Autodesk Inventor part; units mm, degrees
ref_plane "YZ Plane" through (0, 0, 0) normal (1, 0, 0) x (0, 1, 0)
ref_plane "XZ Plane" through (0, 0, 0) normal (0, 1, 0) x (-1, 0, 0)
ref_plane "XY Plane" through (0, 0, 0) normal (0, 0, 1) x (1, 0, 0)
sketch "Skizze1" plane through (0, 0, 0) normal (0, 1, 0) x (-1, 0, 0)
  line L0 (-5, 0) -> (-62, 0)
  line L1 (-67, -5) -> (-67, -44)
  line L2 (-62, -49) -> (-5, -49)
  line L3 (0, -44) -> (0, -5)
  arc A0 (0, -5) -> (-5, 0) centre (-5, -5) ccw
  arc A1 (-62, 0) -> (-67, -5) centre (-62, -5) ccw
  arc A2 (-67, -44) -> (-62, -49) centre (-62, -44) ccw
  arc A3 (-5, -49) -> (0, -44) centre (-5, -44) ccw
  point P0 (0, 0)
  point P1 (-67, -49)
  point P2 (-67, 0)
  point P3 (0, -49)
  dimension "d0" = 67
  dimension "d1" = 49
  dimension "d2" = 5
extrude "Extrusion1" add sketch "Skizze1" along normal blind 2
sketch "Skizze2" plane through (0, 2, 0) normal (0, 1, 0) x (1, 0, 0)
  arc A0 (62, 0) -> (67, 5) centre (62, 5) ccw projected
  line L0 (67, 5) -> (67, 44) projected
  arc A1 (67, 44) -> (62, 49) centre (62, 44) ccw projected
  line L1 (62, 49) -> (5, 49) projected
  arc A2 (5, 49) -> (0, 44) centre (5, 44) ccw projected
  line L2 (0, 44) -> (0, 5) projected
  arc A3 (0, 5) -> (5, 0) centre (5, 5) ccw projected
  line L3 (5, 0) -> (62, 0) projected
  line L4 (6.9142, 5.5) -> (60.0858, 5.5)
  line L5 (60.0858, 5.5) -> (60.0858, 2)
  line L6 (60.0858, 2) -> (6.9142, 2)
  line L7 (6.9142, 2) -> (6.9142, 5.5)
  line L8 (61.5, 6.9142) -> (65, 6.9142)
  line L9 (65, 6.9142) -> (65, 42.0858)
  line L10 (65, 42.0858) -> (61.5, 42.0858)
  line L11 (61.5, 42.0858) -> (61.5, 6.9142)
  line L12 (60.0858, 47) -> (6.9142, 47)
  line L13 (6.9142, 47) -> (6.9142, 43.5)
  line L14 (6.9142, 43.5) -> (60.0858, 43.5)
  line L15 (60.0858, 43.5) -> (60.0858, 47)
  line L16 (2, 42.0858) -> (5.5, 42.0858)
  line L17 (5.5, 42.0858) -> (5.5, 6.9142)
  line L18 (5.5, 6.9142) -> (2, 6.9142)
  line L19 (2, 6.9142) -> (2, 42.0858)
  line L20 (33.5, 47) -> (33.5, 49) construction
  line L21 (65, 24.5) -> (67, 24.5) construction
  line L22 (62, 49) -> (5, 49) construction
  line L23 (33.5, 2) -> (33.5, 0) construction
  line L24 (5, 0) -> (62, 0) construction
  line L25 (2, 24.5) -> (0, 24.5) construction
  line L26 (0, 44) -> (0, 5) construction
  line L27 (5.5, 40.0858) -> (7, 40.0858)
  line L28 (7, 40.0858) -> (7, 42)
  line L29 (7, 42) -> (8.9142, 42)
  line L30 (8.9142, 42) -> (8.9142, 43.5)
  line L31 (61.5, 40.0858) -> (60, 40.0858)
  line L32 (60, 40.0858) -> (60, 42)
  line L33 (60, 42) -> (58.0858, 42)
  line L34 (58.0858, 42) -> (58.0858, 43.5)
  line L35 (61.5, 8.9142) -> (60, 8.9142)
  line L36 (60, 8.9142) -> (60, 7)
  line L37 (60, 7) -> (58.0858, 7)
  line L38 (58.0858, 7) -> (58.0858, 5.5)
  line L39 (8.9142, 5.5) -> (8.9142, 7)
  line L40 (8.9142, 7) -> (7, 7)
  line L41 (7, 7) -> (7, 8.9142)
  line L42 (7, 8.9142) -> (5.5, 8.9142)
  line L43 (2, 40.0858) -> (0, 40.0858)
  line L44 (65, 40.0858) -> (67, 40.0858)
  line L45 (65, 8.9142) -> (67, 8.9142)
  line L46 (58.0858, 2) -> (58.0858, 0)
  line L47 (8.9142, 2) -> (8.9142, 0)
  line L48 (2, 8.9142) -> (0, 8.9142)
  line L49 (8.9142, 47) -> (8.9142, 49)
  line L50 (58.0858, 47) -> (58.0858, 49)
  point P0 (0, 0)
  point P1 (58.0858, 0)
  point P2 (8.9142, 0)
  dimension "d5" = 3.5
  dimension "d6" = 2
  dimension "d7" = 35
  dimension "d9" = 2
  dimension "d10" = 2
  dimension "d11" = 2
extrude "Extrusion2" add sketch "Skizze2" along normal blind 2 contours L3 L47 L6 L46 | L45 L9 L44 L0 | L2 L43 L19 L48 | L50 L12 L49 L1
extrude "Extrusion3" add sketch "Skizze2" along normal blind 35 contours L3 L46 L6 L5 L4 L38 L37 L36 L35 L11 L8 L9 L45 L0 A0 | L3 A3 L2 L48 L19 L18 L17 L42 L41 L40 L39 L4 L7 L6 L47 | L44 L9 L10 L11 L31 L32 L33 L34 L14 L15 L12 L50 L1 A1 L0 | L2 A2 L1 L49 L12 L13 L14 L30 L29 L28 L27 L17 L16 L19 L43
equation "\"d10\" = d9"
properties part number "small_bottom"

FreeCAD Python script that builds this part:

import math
import FreeCAD as App
import Part
import Sketcher

V = App.Vector

doc = App.newDocument("Part")
body = doc.addObject("PartDesign::Body", "Body")

# Sketch on XZ plane
sketch1 = doc.addObject("Sketcher::SketchObject", "Sketch")
body.addObject(sketch1)
sketch1.AttachmentSupport = (doc.XZ_Plane, [""])
sketch1.MapMode = "FlatFace"
sketch1.addGeometry([
    Part.ArcOfCircle(Part.Circle(V(5, -5, 0), V(0, 0, 1), 5), math.radians(90), math.radians(180)),  # 0
    Part.LineSegment(V(5, 0, 0), V(62, 0, 0)),  # 1
    Part.ArcOfCircle(Part.Circle(V(62, -5, 0), V(0, 0, 1), 5), math.radians(0), math.radians(90)),  # 2
    Part.LineSegment(V(67, -5, 0), V(67, -44, 0)),  # 3
    Part.ArcOfCircle(Part.Circle(V(62, -44, 0), V(0, 0, 1), 5), math.radians(-90), math.radians(0)),  # 4
    Part.LineSegment(V(62, -49, 0), V(5, -49, 0)),  # 5
    Part.ArcOfCircle(Part.Circle(V(5, -44, 0), V(0, 0, 1), 5), math.radians(180), math.radians(270)),  # 6
    Part.LineSegment(V(0, -44, 0), V(0, -5, 0)),  # 7
], False)
sketch1.addConstraint([
    Sketcher.Constraint("Tangent", 0, 1, 1, 1),
    Sketcher.Constraint("Tangent", 1, 2, 2, 2),
    Sketcher.Constraint("Tangent", 2, 1, 3, 1),
    Sketcher.Constraint("Tangent", 3, 2, 4, 2),
    Sketcher.Constraint("Tangent", 4, 1, 5, 1),
    Sketcher.Constraint("Tangent", 5, 2, 6, 2),
    Sketcher.Constraint("Tangent", 6, 1, 7, 1),
    Sketcher.Constraint("Tangent", 7, 2, 0, 2),
    Sketcher.Constraint("Horizontal", 1),
    Sketcher.Constraint("Vertical", 3),
    Sketcher.Constraint("Horizontal", 5),
    Sketcher.Constraint("Vertical", 7),
    Sketcher.Constraint("Equal", 0, 2),
    Sketcher.Constraint("Equal", 2, 4),
    Sketcher.Constraint("Equal", 4, 6),
    Sketcher.Constraint("PointOnObject", 0, 1, -1),
    Sketcher.Constraint("PointOnObject", 6, 1, -2),
    Sketcher.Constraint("Radius", 0, 5.0),
    Sketcher.Constraint("DistanceX", -1, 1, 2, 1, 67.0),
    Sketcher.Constraint("DistanceY", 4, 1, -1, 1, 49.0),
])
pad1 = doc.addObject("PartDesign::Pad", "Pad")
body.addObject(pad1)
pad1.Profile = sketch1
pad1.Length = 2
pad1.Reversed = True

# Sketch on XZ plane
sketch2 = doc.addObject("Sketcher::SketchObject", "Sketch001")
body.addObject(sketch2)
sketch2.AttachmentSupport = (doc.XZ_Plane, [""])
sketch2.MapMode = "FlatFace"
sketch2.AttachmentOffset = App.Placement(V(0, 0, -2), App.Rotation())
sketch2.addGeometry([
    Part.LineSegment(V(8.9142, 0, 0), V(58.0858, 0, 0)),  # 0
    Part.LineSegment(V(58.0858, 0, 0), V(58.0858, -2, 0)),  # 1
    Part.LineSegment(V(58.0858, -2, 0), V(8.9142, -2, 0)),  # 2
    Part.LineSegment(V(8.9142, -2, 0), V(8.9142, 0, 0)),  # 3
    Part.LineSegment(V(65, -8.9142, 0), V(67, -8.9142, 0)),  # 4
    Part.LineSegment(V(67, -8.9142, 0), V(67, -40.0858, 0)),  # 5
    Part.LineSegment(V(67, -40.0858, 0), V(65, -40.0858, 0)),  # 6
    Part.LineSegment(V(65, -40.0858, 0), V(65, -8.9142, 0)),  # 7
    Part.LineSegment(V(0, -40.0858, 0), V(0, -8.9142, 0)),  # 8
    Part.LineSegment(V(0, -8.9142, 0), V(2, -8.9142, 0)),  # 9
    Part.LineSegment(V(2, -8.9142, 0), V(2, -40.0858, 0)),  # 10
    Part.LineSegment(V(2, -40.0858, 0), V(0, -40.0858, 0)),  # 11
    Part.LineSegment(V(58.0858, -47, 0), V(58.0858, -49, 0)),  # 12
    Part.LineSegment(V(58.0858, -49, 0), V(8.9142, -49, 0)),  # 13
    Part.LineSegment(V(8.9142, -49, 0), V(8.9142, -47, 0)),  # 14
    Part.LineSegment(V(8.9142, -47, 0), V(58.0858, -47, 0)),  # 15
], False)
sketch2.addConstraint([
    Sketcher.Constraint("Coincident", 0, 2, 1, 1),
    Sketcher.Constraint("Coincident", 1, 2, 2, 1),
    Sketcher.Constraint("Coincident", 2, 2, 3, 1),
    Sketcher.Constraint("Coincident", 3, 2, 0, 1),
    Sketcher.Constraint("Coincident", 4, 2, 5, 1),
    Sketcher.Constraint("Coincident", 5, 2, 6, 1),
    Sketcher.Constraint("Coincident", 6, 2, 7, 1),
    Sketcher.Constraint("Coincident", 7, 2, 4, 1),
    Sketcher.Constraint("Coincident", 8, 2, 9, 1),
    Sketcher.Constraint("Coincident", 9, 2, 10, 1),
    Sketcher.Constraint("Coincident", 10, 2, 11, 1),
    Sketcher.Constraint("Coincident", 11, 2, 8, 1),
    Sketcher.Constraint("Coincident", 12, 2, 13, 1),
    Sketcher.Constraint("Coincident", 13, 2, 14, 1),
    Sketcher.Constraint("Coincident", 14, 2, 15, 1),
    Sketcher.Constraint("Coincident", 15, 2, 12, 1),
    Sketcher.Constraint("Horizontal", 0),
    Sketcher.Constraint("Vertical", 1),
    Sketcher.Constraint("Horizontal", 2),
    Sketcher.Constraint("Vertical", 3),
    Sketcher.Constraint("Horizontal", 4),
    Sketcher.Constraint("Vertical", 5),
    Sketcher.Constraint("Horizontal", 6),
    Sketcher.Constraint("Vertical", 7),
    Sketcher.Constraint("Vertical", 8),
    Sketcher.Constraint("Horizontal", 9),
    Sketcher.Constraint("Vertical", 10),
    Sketcher.Constraint("Horizontal", 11),
    Sketcher.Constraint("Vertical", 12),
    Sketcher.Constraint("Horizontal", 13),
    Sketcher.Constraint("Vertical", 14),
    Sketcher.Constraint("Horizontal", 15),
    Sketcher.Constraint("PointOnObject", 0, 2, -1),
    Sketcher.Constraint("PointOnObject", 8, 2, -2),
    Sketcher.Constraint("Horizontal", 7, 2, 8, 2),
    Sketcher.Constraint("Horizontal", 6, 2, 10, 2),
    Sketcher.Constraint("Vertical", 1, 2, 12, 2),
    Sketcher.Constraint("Vertical", 3, 2, 13, 2),
    Sketcher.Constraint("Equal", 6, 9),
    Sketcher.Constraint("Equal", 11, 1),
    Sketcher.Constraint("Equal", 3, 12),
    Sketcher.Constraint("DistanceX", 4, 1, 4, 2, 2.0),
    Sketcher.Constraint("DistanceX", -1, 1, 4, 2, 67.0),
    Sketcher.Constraint("DistanceY", 12, 2, -1, 1, 49.0),
    Sketcher.Constraint("DistanceX", 0, 1, 0, 2, 49.1716),
    Sketcher.Constraint("DistanceY", 5, 2, 5, 1, 31.1716),
    Sketcher.Constraint("DistanceX", -1, 1, 0, 2, 58.0858),
    Sketcher.Constraint("DistanceY", 4, 2, -1, 1, 8.9142),
])
pad2 = doc.addObject("PartDesign::Pad", "Pad001")
body.addObject(pad2)
pad2.Profile = sketch2
pad2.Length = 2
pad2.Reversed = True

# Sketch on XZ plane
sketch3 = doc.addObject("Sketcher::SketchObject", "Sketch002")
body.addObject(sketch3)
sketch3.AttachmentSupport = (doc.XZ_Plane, [""])
sketch3.MapMode = "FlatFace"
sketch3.AttachmentOffset = App.Placement(V(0, 0, -2), App.Rotation())
sketch3.addGeometry([
    Part.LineSegment(V(58.0858, 0, 0), V(62, 0, 0)),  # 0
    Part.ArcOfCircle(Part.Circle(V(62, -5, 0), V(0, 0, 1), 5), math.radians(0), math.radians(90)),  # 1
    Part.LineSegment(V(67, -5, 0), V(67, -8.9142, 0)),  # 2
    Part.LineSegment(V(67, -8.9142, 0), V(65, -8.9142, 0)),  # 3
    Part.LineSegment(V(65, -8.9142, 0), V(65, -6.9142, 0)),  # 4
    Part.LineSegment(V(65, -6.9142, 0), V(61.5, -6.9142, 0)),  # 5
    Part.LineSegment(V(61.5, -6.9142, 0), V(61.5, -8.9142, 0)),  # 6
    Part.LineSegment(V(61.5, -8.9142, 0), V(60, -8.9142, 0)),  # 7
    Part.LineSegment(V(60, -8.9142, 0), V(60, -7, 0)),  # 8
    Part.LineSegment(V(60, -7, 0), V(58.0858, -7, 0)),  # 9
    Part.LineSegment(V(58.0858, -7, 0), V(58.0858, -5.5, 0)),  # 10
    Part.LineSegment(V(58.0858, -5.5, 0), V(60.0858, -5.5, 0)),  # 11
    Part.LineSegment(V(60.0858, -5.5, 0), V(60.0858, -2, 0)),  # 12
    Part.LineSegment(V(60.0858, -2, 0), V(58.0858, -2, 0)),  # 13
    Part.LineSegment(V(58.0858, -2, 0), V(58.0858, 0, 0)),  # 14
    Part.LineSegment(V(5, 0, 0), V(8.9142, 0, 0)),  # 15
    Part.LineSegment(V(8.9142, 0, 0), V(8.9142, -2, 0)),  # 16
    Part.LineSegment(V(8.9142, -2, 0), V(6.9142, -2, 0)),  # 17
    Part.LineSegment(V(6.9142, -2, 0), V(6.9142, -5.5, 0)),  # 18
    Part.LineSegment(V(6.9142, -5.5, 0), V(8.9142, -5.5, 0)),  # 19
    Part.LineSegment(V(8.9142, -5.5, 0), V(8.9142, -7, 0)),  # 20
    Part.LineSegment(V(8.9142, -7, 0), V(7, -7, 0)),  # 21
    Part.LineSegment(V(7, -7, 0), V(7, -8.9142, 0)),  # 22
    Part.LineSegment(V(7, -8.9142, 0), V(5.5, -8.9142, 0)),  # 23
    Part.LineSegment(V(5.5, -8.9142, 0), V(5.5, -6.9142, 0)),  # 24
    Part.LineSegment(V(5.5, -6.9142, 0), V(2, -6.9142, 0)),  # 25
    Part.LineSegment(V(2, -6.9142, 0), V(2, -8.9142, 0)),  # 26
    Part.LineSegment(V(2, -8.9142, 0), V(0, -8.9142, 0)),  # 27
    Part.LineSegment(V(0, -8.9142, 0), V(0, -5, 0)),  # 28
    Part.ArcOfCircle(Part.Circle(V(5, -5, 0), V(0, 0, 1), 5), math.radians(90), math.radians(180)),  # 29
    Part.LineSegment(V(65, -40.0858, 0), V(67, -40.0858, 0)),  # 30
    Part.LineSegment(V(67, -40.0858, 0), V(67, -44, 0)),  # 31
    Part.ArcOfCircle(Part.Circle(V(62, -44, 0), V(0, 0, 1), 5), math.radians(-90), math.radians(0)),  # 32
    Part.LineSegment(V(62, -49, 0), V(58.0858, -49, 0)),  # 33
    Part.LineSegment(V(58.0858, -49, 0), V(58.0858, -47, 0)),  # 34
    Part.LineSegment(V(58.0858, -47, 0), V(60.0858, -47, 0)),  # 35
    Part.LineSegment(V(60.0858, -47, 0), V(60.0858, -43.5, 0)),  # 36
    Part.LineSegment(V(60.0858, -43.5, 0), V(58.0858, -43.5, 0)),  # 37
    Part.LineSegment(V(58.0858, -43.5, 0), V(58.0858, -42, 0)),  # 38
    Part.LineSegment(V(58.0858, -42, 0), V(60, -42, 0)),  # 39
    Part.LineSegment(V(60, -42, 0), V(60, -40.0858, 0)),  # 40
    Part.LineSegment(V(60, -40.0858, 0), V(61.5, -40.0858, 0)),  # 41
    Part.LineSegment(V(61.5, -40.0858, 0), V(61.5, -42.0858, 0)),  # 42
    Part.LineSegment(V(61.5, -42.0858, 0), V(65, -42.0858, 0)),  # 43
    Part.LineSegment(V(65, -42.0858, 0), V(65, -40.0858, 0)),  # 44
    Part.LineSegment(V(0, -44, 0), V(0, -40.0858, 0)),  # 45
    Part.LineSegment(V(0, -40.0858, 0), V(2, -40.0858, 0)),  # 46
    Part.LineSegment(V(2, -40.0858, 0), V(2, -42.0858, 0)),  # 47
    Part.LineSegment(V(2, -42.0858, 0), V(5.5, -42.0858, 0)),  # 48
    Part.LineSegment(V(5.5, -42.0858, 0), V(5.5, -40.0858, 0)),  # 49
    Part.LineSegment(V(5.5, -40.0858, 0), V(7, -40.0858, 0)),  # 50
    Part.LineSegment(V(7, -40.0858, 0), V(7, -42, 0)),  # 51
    Part.LineSegment(V(7, -42, 0), V(8.9142, -42, 0)),  # 52
    Part.LineSegment(V(8.9142, -42, 0), V(8.9142, -43.5, 0)),  # 53
    Part.LineSegment(V(8.9142, -43.5, 0), V(6.9142, -43.5, 0)),  # 54
    Part.LineSegment(V(6.9142, -43.5, 0), V(6.9142, -47, 0)),  # 55
    Part.LineSegment(V(6.9142, -47, 0), V(8.9142, -47, 0)),  # 56
    Part.LineSegment(V(8.9142, -47, 0), V(8.9142, -49, 0)),  # 57
    Part.LineSegment(V(8.9142, -49, 0), V(5, -49, 0)),  # 58
    Part.ArcOfCircle(Part.Circle(V(5, -44, 0), V(0, 0, 1), 5), math.radians(180), math.radians(270)),  # 59
], False)
sketch3.addConstraint([
    Sketcher.Constraint("Tangent", 0, 2, 1, 2),
    Sketcher.Constraint("Tangent", 1, 1, 2, 1),
    Sketcher.Constraint("Coincident", 2, 2, 3, 1),
    Sketcher.Constraint("Coincident", 3, 2, 4, 1),
    Sketcher.Constraint("Coincident", 4, 2, 5, 1),
    Sketcher.Constraint("Coincident", 5, 2, 6, 1),
    Sketcher.Constraint("Coincident", 6, 2, 7, 1),
    Sketcher.Constraint("Coincident", 7, 2, 8, 1),
    Sketcher.Constraint("Coincident", 8, 2, 9, 1),
    Sketcher.Constraint("Coincident", 9, 2, 10, 1),
    Sketcher.Constraint("Coincident", 10, 2, 11, 1),
    Sketcher.Constraint("Coincident", 11, 2, 12, 1),
    Sketcher.Constraint("Coincident", 12, 2, 13, 1),
    Sketcher.Constraint("Coincident", 13, 2, 14, 1),
    Sketcher.Constraint("Coincident", 14, 2, 0, 1),
    Sketcher.Constraint("Coincident", 15, 2, 16, 1),
    Sketcher.Constraint("Coincident", 16, 2, 17, 1),
    Sketcher.Constraint("Coincident", 17, 2, 18, 1),
    Sketcher.Constraint("Coincident", 18, 2, 19, 1),
    Sketcher.Constraint("Coincident", 19, 2, 20, 1),
    Sketcher.Constraint("Coincident", 20, 2, 21, 1),
    Sketcher.Constraint("Coincident", 21, 2, 22, 1),
    Sketcher.Constraint("Coincident", 22, 2, 23, 1),
    Sketcher.Constraint("Coincident", 23, 2, 24, 1),
    Sketcher.Constraint("Coincident", 24, 2, 25, 1),
    Sketcher.Constraint("Coincident", 25, 2, 26, 1),
    Sketcher.Constraint("Coincident", 26, 2, 27, 1),
    Sketcher.Constraint("Coincident", 27, 2, 28, 1),
    Sketcher.Constraint("Tangent", 28, 2, 29, 2),
    Sketcher.Constraint("Tangent", 29, 1, 15, 1),
    Sketcher.Constraint("Coincident", 30, 2, 31, 1),
    Sketcher.Constraint("Tangent", 31, 2, 32, 2),
    Sketcher.Constraint("Tangent", 32, 1, 33, 1),
    Sketcher.Constraint("Coincident", 33, 2, 34, 1),
    Sketcher.Constraint("Coincident", 34, 2, 35, 1),
    Sketcher.Constraint("Coincident", 35, 2, 36, 1),
    Sketcher.Constraint("Coincident", 36, 2, 37, 1),
    Sketcher.Constraint("Coincident", 37, 2, 38, 1),
    Sketcher.Constraint("Coincident", 38, 2, 39, 1),
    Sketcher.Constraint("Coincident", 39, 2, 40, 1),
    Sketcher.Constraint("Coincident", 40, 2, 41, 1),
    Sketcher.Constraint("Coincident", 41, 2, 42, 1),
    Sketcher.Constraint("Coincident", 42, 2, 43, 1),
    Sketcher.Constraint("Coincident", 43, 2, 44, 1),
    Sketcher.Constraint("Coincident", 44, 2, 30, 1),
    Sketcher.Constraint("Coincident", 45, 2, 46, 1),
    Sketcher.Constraint("Coincident", 46, 2, 47, 1),
    Sketcher.Constraint("Coincident", 47, 2, 48, 1),
    Sketcher.Constraint("Coincident", 48, 2, 49, 1),
    Sketcher.Constraint("Coincident", 49, 2, 50, 1),
    Sketcher.Constraint("Coincident", 50, 2, 51, 1),
    Sketcher.Constraint("Coincident", 51, 2, 52, 1),
    Sketcher.Constraint("Coincident", 52, 2, 53, 1),
    Sketcher.Constraint("Coincident", 53, 2, 54, 1),
    Sketcher.Constraint("Coincident", 54, 2, 55, 1),
    Sketcher.Constraint("Coincident", 55, 2, 56, 1),
    Sketcher.Constraint("Coincident", 56, 2, 57, 1),
    Sketcher.Constraint("Coincident", 57, 2, 58, 1),
    Sketcher.Constraint("Tangent", 58, 2, 59, 2),
    Sketcher.Constraint("Tangent", 59, 1, 45, 1),
    Sketcher.Constraint("Horizontal", 0),
    Sketcher.Constraint("Vertical", 2),
    Sketcher.Constraint("Horizontal", 3),
    Sketcher.Constraint("Vertical", 4),
    Sketcher.Constraint("Horizontal", 5),
    Sketcher.Constraint("Vertical", 6),
    Sketcher.Constraint("Horizontal", 7),
    Sketcher.Constraint("Vertical", 8),
    Sketcher.Constraint("Horizontal", 9),
    Sketcher.Constraint("Vertical", 10),
    Sketcher.Constraint("Horizontal", 11),
    Sketcher.Constraint("Vertical", 12),
    Sketcher.Constraint("Horizontal", 13),
    Sketcher.Constraint("Vertical", 14),
    Sketcher.Constraint("Horizontal", 15),
    Sketcher.Constraint("Vertical", 16),
    Sketcher.Constraint("Horizontal", 17),
    Sketcher.Constraint("Vertical", 18),
    Sketcher.Constraint("Horizontal", 19),
    Sketcher.Constraint("Vertical", 20),
    Sketcher.Constraint("Horizontal", 21),
    Sketcher.Constraint("Vertical", 22),
    Sketcher.Constraint("Horizontal", 23),
    Sketcher.Constraint("Vertical", 24),
    Sketcher.Constraint("Horizontal", 25),
    Sketcher.Constraint("Vertical", 26),
    Sketcher.Constraint("Horizontal", 27),
    Sketcher.Constraint("Vertical", 28),
    Sketcher.Constraint("Horizontal", 30),
    Sketcher.Constraint("Vertical", 31),
    Sketcher.Constraint("Horizontal", 33),
    Sketcher.Constraint("Vertical", 34),
    Sketcher.Constraint("Horizontal", 35),
    Sketcher.Constraint("Vertical", 36),
    Sketcher.Constraint("Horizontal", 37),
    Sketcher.Constraint("Vertical", 38),
    Sketcher.Constraint("Horizontal", 39),
    Sketcher.Constraint("Vertical", 40),
    Sketcher.Constraint("Horizontal", 41),
    Sketcher.Constraint("Vertical", 42),
    Sketcher.Constraint("Horizontal", 43),
    Sketcher.Constraint("Vertical", 44),
    Sketcher.Constraint("Vertical", 45),
    Sketcher.Constraint("Horizontal", 46),
    Sketcher.Constraint("Vertical", 47),
    Sketcher.Constraint("Horizontal", 48),
    Sketcher.Constraint("Vertical", 49),
    Sketcher.Constraint("Horizontal", 50),
    Sketcher.Constraint("Vertical", 51),
    Sketcher.Constraint("Horizontal", 52),
    Sketcher.Constraint("Vertical", 53),
    Sketcher.Constraint("Horizontal", 54),
    Sketcher.Constraint("Vertical", 55),
    Sketcher.Constraint("Horizontal", 56),
    Sketcher.Constraint("Vertical", 57),
    Sketcher.Constraint("Horizontal", 58),
    Sketcher.Constraint("Equal", 1, 29),
    Sketcher.Constraint("Equal", 29, 32),
    Sketcher.Constraint("Equal", 32, 59),
    Sketcher.Constraint("PointOnObject", 0, 2, -1),
    Sketcher.Constraint("PointOnObject", 15, 2, -1),
    Sketcher.Constraint("PointOnObject", 27, 2, -2),
    Sketcher.Constraint("PointOnObject", 45, 2, -2),
    Sketcher.Constraint("Horizontal", 32, 3, 59, 3),
    Sketcher.Constraint("Horizontal", 3, 2, 6, 2),
    Sketcher.Constraint("Horizontal", 13, 2, 16, 2),
    Sketcher.Constraint("Horizontal", 11, 2, 18, 2),
    Sketcher.Constraint("Horizontal", 9, 2, 20, 2),
    Sketcher.Constraint("Horizontal", 7, 2, 22, 2),
    Sketcher.Constraint("Horizontal", 5, 2, 24, 2),
    Sketcher.Constraint("Horizontal", 23, 2, 26, 2),
    Sketcher.Constraint("Horizontal", 30, 2, 40, 2),
    Sketcher.Constraint("Horizontal", 44, 2, 45, 2),
    Sketcher.Constraint("Horizontal", 43, 2, 47, 2),
    Sketcher.Constraint("Horizontal", 46, 2, 49, 2),
    Sketcher.Constraint("Horizontal", 39, 2, 51, 2),
    Sketcher.Constraint("Horizontal", 37, 2, 53, 2),
    Sketcher.Constraint("Horizontal", 35, 2, 55, 2),
    Sketcher.Constraint("Vertical", 1, 3, 32, 3),
    Sketcher.Constraint("Vertical", 10, 2, 13, 2),
    Sketcher.Constraint("Vertical", 16, 2, 19, 2),
    Sketcher.Constraint("Vertical", 14, 2, 33, 2),
    Sketcher.Constraint("Vertical", 12, 2, 35, 2),
    Sketcher.Constraint("Vertical", 34, 2, 37, 2),
    Sketcher.Constraint("Vertical", 8, 2, 39, 2),
    Sketcher.Constraint("Vertical", 6, 2, 41, 2),
    Sketcher.Constraint("Vertical", 4, 2, 43, 2),
    Sketcher.Constraint("Vertical", 26, 2, 46, 2),
    Sketcher.Constraint("Vertical", 24, 2, 48, 2),
    Sketcher.Constraint("Vertical", 22, 2, 50, 2),
    Sketcher.Constraint("Vertical", 20, 2, 52, 2),
    Sketcher.Constraint("Vertical", 18, 2, 54, 2),
    Sketcher.Constraint("Vertical", 53, 2, 56, 2),
    Sketcher.Constraint("Equal", 3, 11),
    Sketcher.Constraint("Equal", 0, 15),
    Sketcher.Constraint("Equal", 13, 17),
    Sketcher.Constraint("Equal", 9, 21),
    Sketcher.Constraint("Equal", 7, 23),
    Sketcher.Constraint("Equal", 5, 25),
    Sketcher.Constraint("Equal", 58, 2),
    Sketcher.Constraint("Equal", 56, 4),
    Sketcher.Constraint("Equal", 52, 8),
    Sketcher.Constraint("Equal", 50, 10),
    Sketcher.Constraint("Equal", 48, 12),
    Sketcher.Constraint("Equal", 28, 31),
    Sketcher.Constraint("Equal", 26, 34),
    Sketcher.Constraint("Equal", 18, 36),
    Sketcher.Constraint("Equal", 20, 38),
    Sketcher.Constraint("Equal", 34, 42),
    Sketcher.Constraint("DistanceX", 3, 2, 3, 1, 2.0),
    Sketcher.Constraint("DistanceX", 5, 2, 5, 1, 3.5),
    Sketcher.Constraint("Radius", 1, 5.0),
    Sketcher.Constraint("DistanceX", 7, 2, 7, 1, 1.5),
    Sketcher.Constraint("DistanceX", -1, 1, 1, 3, 62.0),
    Sketcher.Constraint("DistanceY", 32, 3, -1, 1, 44.0),
    Sketcher.Constraint("DistanceX", 0, 1, 0, 2, 3.9142),
])
pad3 = doc.addObject("PartDesign::Pad", "Pad002")
body.addObject(pad3)
pad3.Profile = sketch3
pad3.Length = 35
pad3.Reversed = True

doc.recompute()
